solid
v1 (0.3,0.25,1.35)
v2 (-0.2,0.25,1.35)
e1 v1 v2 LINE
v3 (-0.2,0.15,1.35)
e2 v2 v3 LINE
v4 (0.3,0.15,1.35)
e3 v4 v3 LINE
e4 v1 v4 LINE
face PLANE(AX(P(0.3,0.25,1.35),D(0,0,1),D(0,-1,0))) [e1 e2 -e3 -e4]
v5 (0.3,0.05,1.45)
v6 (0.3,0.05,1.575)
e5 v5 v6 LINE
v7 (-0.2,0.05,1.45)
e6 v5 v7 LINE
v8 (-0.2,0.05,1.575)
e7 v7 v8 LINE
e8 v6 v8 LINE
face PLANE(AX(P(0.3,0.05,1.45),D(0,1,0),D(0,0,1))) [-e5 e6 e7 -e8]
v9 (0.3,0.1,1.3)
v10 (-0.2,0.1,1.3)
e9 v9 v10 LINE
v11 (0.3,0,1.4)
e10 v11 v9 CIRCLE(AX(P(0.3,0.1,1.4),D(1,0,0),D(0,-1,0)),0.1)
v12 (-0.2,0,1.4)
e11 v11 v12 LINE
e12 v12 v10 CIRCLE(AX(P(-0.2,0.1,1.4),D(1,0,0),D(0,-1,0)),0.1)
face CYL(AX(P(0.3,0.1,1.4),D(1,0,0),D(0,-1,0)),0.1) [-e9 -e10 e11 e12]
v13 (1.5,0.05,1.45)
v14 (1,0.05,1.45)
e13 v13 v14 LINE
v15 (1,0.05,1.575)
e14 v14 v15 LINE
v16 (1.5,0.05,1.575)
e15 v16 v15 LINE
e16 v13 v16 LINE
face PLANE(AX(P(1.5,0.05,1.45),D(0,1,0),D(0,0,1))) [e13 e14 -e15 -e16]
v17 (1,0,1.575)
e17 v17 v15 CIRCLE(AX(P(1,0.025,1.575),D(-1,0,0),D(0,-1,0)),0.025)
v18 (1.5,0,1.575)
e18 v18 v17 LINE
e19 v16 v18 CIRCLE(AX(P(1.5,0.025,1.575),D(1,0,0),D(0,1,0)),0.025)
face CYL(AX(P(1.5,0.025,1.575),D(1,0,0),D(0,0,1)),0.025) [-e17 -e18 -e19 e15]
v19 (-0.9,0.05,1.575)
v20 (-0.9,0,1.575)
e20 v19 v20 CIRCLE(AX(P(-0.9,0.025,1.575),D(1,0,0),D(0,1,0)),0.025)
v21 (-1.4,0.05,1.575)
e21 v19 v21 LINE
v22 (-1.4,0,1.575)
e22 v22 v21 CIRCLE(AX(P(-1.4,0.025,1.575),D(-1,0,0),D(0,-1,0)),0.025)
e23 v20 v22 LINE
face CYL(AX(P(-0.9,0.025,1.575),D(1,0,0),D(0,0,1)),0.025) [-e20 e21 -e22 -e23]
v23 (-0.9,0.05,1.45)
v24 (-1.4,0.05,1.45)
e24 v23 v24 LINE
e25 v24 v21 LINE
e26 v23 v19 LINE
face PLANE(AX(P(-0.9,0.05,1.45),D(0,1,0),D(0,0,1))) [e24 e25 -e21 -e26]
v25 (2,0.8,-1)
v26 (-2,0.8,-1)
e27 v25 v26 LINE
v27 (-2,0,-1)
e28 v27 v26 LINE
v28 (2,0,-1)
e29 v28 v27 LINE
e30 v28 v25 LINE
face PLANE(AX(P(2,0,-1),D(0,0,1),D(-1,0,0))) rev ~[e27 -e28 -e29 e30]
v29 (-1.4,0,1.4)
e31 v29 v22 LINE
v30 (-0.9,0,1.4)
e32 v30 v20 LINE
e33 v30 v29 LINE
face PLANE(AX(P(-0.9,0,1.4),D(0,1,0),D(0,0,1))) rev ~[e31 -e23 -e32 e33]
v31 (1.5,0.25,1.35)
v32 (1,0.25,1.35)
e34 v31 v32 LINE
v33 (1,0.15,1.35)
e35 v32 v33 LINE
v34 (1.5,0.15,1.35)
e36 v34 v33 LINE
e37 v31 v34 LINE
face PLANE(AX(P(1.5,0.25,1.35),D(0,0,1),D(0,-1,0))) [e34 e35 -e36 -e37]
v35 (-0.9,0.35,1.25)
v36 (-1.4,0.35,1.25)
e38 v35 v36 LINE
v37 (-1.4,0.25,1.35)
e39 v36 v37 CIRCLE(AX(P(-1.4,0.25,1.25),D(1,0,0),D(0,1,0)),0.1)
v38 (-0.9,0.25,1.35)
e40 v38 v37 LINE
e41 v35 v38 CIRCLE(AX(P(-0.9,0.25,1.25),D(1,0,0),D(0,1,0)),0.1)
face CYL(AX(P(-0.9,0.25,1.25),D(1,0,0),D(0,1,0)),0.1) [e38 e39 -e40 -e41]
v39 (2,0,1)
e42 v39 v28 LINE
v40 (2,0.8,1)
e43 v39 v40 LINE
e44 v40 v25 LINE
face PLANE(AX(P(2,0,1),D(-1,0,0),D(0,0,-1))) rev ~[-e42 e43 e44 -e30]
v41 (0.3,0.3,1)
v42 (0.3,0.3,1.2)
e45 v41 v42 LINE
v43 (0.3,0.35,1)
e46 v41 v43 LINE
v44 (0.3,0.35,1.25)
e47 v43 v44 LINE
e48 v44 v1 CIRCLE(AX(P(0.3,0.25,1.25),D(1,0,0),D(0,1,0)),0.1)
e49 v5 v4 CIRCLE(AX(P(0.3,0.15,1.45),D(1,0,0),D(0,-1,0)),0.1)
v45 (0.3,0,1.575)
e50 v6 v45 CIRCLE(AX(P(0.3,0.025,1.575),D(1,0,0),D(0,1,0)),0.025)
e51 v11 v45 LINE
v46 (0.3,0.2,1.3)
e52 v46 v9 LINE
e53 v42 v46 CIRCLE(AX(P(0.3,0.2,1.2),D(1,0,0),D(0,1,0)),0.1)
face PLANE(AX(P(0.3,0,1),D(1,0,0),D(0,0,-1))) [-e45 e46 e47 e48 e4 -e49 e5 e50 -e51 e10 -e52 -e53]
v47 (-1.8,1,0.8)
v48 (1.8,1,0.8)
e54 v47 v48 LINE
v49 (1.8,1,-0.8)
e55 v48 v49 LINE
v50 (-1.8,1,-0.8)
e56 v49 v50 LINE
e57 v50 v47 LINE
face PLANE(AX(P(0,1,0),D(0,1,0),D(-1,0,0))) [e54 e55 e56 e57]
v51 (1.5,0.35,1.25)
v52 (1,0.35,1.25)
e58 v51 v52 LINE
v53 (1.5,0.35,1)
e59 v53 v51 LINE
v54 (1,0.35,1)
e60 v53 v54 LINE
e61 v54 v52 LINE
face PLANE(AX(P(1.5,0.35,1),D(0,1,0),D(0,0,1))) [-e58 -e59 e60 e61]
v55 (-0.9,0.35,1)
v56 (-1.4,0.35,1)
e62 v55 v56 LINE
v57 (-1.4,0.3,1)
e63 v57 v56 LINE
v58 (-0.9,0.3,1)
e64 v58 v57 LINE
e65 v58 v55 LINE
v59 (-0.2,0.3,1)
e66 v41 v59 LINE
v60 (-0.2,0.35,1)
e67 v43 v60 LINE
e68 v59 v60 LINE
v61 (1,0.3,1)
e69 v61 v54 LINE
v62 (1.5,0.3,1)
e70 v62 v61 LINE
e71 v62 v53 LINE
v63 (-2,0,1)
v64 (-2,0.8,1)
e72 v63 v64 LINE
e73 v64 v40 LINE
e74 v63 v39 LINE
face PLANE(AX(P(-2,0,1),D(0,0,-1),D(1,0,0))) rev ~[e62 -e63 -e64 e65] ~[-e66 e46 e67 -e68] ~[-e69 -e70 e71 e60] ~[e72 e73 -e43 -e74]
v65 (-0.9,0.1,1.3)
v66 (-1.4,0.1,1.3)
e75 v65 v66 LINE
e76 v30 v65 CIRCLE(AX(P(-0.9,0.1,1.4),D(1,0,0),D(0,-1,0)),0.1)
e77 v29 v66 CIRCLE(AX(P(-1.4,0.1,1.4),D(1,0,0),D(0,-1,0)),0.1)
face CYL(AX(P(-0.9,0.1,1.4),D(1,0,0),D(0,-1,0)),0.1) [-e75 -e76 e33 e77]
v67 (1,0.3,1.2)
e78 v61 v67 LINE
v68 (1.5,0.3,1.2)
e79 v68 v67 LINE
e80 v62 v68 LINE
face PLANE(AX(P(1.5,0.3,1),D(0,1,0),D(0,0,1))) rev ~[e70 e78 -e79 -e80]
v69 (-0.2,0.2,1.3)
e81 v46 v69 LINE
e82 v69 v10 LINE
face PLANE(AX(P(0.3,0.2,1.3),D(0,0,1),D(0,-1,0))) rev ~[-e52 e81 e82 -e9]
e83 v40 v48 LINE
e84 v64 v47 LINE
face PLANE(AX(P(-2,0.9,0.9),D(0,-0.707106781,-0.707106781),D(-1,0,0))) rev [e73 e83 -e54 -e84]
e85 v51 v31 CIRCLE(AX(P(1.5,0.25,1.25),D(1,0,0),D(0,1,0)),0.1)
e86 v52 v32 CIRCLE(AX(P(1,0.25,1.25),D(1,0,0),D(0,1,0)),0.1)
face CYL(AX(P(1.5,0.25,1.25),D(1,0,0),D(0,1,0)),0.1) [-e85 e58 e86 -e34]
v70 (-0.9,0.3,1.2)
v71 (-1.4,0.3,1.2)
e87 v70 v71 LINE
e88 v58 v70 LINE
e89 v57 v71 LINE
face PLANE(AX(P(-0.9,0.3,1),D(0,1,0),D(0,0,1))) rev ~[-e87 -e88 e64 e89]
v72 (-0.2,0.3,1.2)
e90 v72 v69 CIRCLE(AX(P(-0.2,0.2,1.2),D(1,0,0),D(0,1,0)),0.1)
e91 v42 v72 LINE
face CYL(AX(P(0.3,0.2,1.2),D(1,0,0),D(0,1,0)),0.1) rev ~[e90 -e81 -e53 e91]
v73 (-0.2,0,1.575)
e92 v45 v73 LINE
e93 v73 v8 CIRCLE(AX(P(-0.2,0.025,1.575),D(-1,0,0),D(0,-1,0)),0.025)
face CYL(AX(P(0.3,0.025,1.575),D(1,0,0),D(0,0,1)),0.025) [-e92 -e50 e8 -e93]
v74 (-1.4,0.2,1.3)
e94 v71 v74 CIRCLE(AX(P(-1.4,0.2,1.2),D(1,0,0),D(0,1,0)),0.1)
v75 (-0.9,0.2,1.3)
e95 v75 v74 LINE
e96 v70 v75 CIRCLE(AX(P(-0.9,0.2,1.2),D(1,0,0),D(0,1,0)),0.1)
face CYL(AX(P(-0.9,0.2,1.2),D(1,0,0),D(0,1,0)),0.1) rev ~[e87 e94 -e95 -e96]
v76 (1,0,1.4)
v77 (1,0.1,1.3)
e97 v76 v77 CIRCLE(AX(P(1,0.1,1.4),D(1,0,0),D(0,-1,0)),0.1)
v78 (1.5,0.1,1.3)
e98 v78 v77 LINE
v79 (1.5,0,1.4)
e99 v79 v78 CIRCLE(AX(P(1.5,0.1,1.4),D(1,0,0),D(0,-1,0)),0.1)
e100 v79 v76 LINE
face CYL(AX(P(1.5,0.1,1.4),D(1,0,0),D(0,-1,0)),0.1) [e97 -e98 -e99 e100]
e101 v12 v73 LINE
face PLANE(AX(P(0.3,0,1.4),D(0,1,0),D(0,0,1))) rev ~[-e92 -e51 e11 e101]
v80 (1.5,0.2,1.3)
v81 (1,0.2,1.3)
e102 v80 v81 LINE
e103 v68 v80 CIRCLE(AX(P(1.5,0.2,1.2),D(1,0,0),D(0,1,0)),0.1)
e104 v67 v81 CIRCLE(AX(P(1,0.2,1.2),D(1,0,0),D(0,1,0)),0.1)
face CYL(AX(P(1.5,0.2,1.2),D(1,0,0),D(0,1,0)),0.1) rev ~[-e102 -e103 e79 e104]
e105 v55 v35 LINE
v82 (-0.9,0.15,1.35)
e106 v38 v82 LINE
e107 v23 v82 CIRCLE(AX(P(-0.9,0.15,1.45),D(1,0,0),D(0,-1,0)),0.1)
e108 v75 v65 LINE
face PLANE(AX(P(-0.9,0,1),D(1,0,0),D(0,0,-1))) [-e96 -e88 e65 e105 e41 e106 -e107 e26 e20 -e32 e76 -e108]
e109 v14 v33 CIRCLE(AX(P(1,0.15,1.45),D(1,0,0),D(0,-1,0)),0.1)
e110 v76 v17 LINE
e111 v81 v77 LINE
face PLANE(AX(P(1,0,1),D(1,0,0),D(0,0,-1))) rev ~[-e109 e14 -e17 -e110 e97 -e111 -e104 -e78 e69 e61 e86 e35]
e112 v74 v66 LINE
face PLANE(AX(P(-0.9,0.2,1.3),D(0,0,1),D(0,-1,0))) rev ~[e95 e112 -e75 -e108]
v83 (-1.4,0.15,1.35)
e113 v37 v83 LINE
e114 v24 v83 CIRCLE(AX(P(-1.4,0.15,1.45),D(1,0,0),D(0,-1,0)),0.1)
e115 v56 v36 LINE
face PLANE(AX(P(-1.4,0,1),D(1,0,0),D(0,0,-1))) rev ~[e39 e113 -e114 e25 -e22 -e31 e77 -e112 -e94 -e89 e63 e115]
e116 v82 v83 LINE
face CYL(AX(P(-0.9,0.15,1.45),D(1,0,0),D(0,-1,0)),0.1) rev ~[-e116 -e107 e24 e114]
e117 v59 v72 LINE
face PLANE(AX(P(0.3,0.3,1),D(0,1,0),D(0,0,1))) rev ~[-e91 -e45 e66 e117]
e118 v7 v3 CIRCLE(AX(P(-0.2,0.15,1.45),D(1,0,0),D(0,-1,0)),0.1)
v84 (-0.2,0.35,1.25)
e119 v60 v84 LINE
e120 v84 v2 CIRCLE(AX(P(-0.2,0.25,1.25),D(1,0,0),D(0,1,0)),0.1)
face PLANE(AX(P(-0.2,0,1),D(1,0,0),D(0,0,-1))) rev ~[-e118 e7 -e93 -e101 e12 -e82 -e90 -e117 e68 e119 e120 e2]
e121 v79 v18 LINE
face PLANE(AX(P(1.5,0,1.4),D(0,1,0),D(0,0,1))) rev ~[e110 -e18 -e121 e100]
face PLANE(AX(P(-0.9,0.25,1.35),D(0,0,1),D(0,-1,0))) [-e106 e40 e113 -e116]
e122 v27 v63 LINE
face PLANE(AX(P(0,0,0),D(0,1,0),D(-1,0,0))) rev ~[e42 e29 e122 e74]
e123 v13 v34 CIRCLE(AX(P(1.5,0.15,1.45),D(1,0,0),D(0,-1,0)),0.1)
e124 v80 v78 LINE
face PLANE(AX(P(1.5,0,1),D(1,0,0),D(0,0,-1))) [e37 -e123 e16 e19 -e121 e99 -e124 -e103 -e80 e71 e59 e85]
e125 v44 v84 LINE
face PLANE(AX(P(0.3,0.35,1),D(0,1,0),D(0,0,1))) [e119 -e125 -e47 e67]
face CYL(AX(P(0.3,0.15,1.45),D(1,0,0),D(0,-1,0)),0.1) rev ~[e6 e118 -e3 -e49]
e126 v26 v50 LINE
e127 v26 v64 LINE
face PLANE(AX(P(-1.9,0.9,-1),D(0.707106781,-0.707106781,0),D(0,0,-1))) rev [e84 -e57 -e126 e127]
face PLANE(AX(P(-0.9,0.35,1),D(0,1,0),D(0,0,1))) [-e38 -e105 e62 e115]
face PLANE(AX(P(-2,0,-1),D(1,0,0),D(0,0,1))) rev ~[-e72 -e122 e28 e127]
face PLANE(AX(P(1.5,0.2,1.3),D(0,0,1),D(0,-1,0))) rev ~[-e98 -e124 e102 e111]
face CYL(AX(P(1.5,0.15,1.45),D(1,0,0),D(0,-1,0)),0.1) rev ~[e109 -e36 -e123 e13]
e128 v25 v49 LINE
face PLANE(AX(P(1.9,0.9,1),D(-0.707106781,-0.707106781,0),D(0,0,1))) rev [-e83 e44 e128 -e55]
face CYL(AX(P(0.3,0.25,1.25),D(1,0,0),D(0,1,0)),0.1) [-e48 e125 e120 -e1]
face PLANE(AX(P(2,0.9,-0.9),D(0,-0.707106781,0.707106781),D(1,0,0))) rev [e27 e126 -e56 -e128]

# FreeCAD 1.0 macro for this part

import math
import FreeCAD as App
import Part
import Sketcher
from FreeCAD import Vector


def edges_at(feature, points):
    """Names of the edges that pass closest to the given points."""
    edges = feature.Shape.Edges
    near = lambda p: min(range(len(edges)), key=lambda i: edges[i].distToShape(Part.Vertex(*p))[0])
    return sorted({f"Edge{near(p) + 1}" for p in points})

doc = App.newDocument("Part")
body = doc.addObject("PartDesign::Body", "Body")

# Sketch on XZ plane
sketch1 = body.newObject("Sketcher::SketchObject", "Sketch")
sketch1.AttachmentSupport = (doc.getObject("XZ_Plane"), [""])
sketch1.MapMode = "FlatFace"
sketch1.addGeometry(Part.LineSegment(Vector(-2, -1, 0), Vector(-2, 1, 0)), False)
sketch1.addGeometry(Part.LineSegment(Vector(-2, 1, 0), Vector(2, 1, 0)), False)
sketch1.addGeometry(Part.LineSegment(Vector(2, 1, 0), Vector(2, -1, 0)), False)
sketch1.addGeometry(Part.LineSegment(Vector(2, -1, 0), Vector(-2, -1, 0)), False)
sketch1.addConstraint(Sketcher.Constraint("Coincident", 0, 2, 1, 1))
sketch1.addConstraint(Sketcher.Constraint("Coincident", 1, 2, 2, 1))
sketch1.addConstraint(Sketcher.Constraint("Coincident", 2, 2, 3, 1))
sketch1.addConstraint(Sketcher.Constraint("Coincident", 3, 2, 0, 1))
sketch1.addConstraint(Sketcher.Constraint("Vertical", 0))
sketch1.addConstraint(Sketcher.Constraint("Horizontal", 1))
sketch1.addConstraint(Sketcher.Constraint("Vertical", 2))
sketch1.addConstraint(Sketcher.Constraint("Horizontal", 3))
sketch1.addConstraint(Sketcher.Constraint("Symmetric", 0, 2, 2, 2, -1, 1))
sketch1.addConstraint(Sketcher.Constraint("DistanceX", 1, 1, 1, 2, 4.0))
sketch1.addConstraint(Sketcher.Constraint("DistanceY", 0, 1, 0, 2, 2.0))
pad1 = body.newObject("PartDesign::Pad", "Pad")
pad1.Profile = sketch1
pad1.Length = 1
pad1.Reversed = True
doc.recompute()

chamfer = body.newObject("PartDesign::Chamfer", "Chamfer")
chamfer.Base = (pad1, edges_at(pad1, [
    (0, 1, 1),
    (2, 1, 0),
    (0, 1, -1),
    (-2, 1, 0),
]))
chamfer.Size = 0.2

# Sketch on YZ plane
sketch2 = body.newObject("Sketcher::SketchObject", "Sketch001")
sketch2.AttachmentSupport = (doc.getObject("YZ_Plane"), [""])
sketch2.MapMode = "FlatFace"
sketch2.AttachmentOffset = App.Placement(Vector(0, 0, 1.5), App.Rotation())
sketch2.addGeometry(Part.LineSegment(Vector(0.3, 1.2, 0), Vector(0.3, 1, 0)), False)
sketch2.addGeometry(Part.LineSegment(Vector(0.3, 1, 0), Vector(0.35, 1, 0)), False)
sketch2.addGeometry(Part.LineSegment(Vector(0.35, 1, 0), Vector(0.35, 1.25, 0)), False)
sketch2.addGeometry(Part.ArcOfCircle(Part.Circle(Vector(0.25, 1.25, 0), Vector(0, 0, 1), 0.1), math.radians(0), math.radians(90)), False)
sketch2.addGeometry(Part.LineSegment(Vector(0.25, 1.35, 0), Vector(0.15, 1.35, 0)), False)
sketch2.addGeometry(Part.ArcOfCircle(Part.Circle(Vector(0.15, 1.45, 0), Vector(0, 0, 1), 0.1), math.radians(180), math.radians(270)), False)
sketch2.addGeometry(Part.LineSegment(Vector(0.05, 1.45, 0), Vector(0.05, 1.575, 0)), False)
sketch2.addGeometry(Part.ArcOfCircle(Part.Circle(Vector(0.025, 1.575, 0), Vector(0, 0, 1), 0.025), math.radians(0), math.radians(180)), False)
sketch2.addGeometry(Part.LineSegment(Vector(0, 1.575, 0), Vector(0, 1.4, 0)), False)
sketch2.addGeometry(Part.ArcOfCircle(Part.Circle(Vector(0.1, 1.4, 0), Vector(0, 0, 1), 0.1), math.radians(180), math.radians(270)), False)
sketch2.addGeometry(Part.LineSegment(Vector(0.1, 1.3, 0), Vector(0.2, 1.3, 0)), False)
sketch2.addGeometry(Part.ArcOfCircle(Part.Circle(Vector(0.2, 1.2, 0), Vector(0, 0, 1), 0.1), math.radians(0), math.radians(90)), False)
sketch2.addConstraint(Sketcher.Constraint("Coincident", 0, 2, 1, 1))
sketch2.addConstraint(Sketcher.Constraint("Coincident", 1, 2, 2, 1))
sketch2.addConstraint(Sketcher.Constraint("Tangent", 2, 2, 3, 1))
sketch2.addConstraint(Sketcher.Constraint("Tangent", 3, 2, 4, 1))
sketch2.addConstraint(Sketcher.Constraint("Tangent", 4, 2, 5, 2))
sketch2.addConstraint(Sketcher.Constraint("Tangent", 5, 1, 6, 1))
sketch2.addConstraint(Sketcher.Constraint("Tangent", 6, 2, 7, 1))
sketch2.addConstraint(Sketcher.Constraint("Tangent", 7, 2, 8, 1))
sketch2.addConstraint(Sketcher.Constraint("Tangent", 8, 2, 9, 1))
sketch2.addConstraint(Sketcher.Constraint("Tangent", 9, 2, 10, 1))
sketch2.addConstraint(Sketcher.Constraint("Tangent", 10, 2, 11, 2))
sketch2.addConstraint(Sketcher.Constraint("Tangent", 11, 1, 0, 1))
sketch2.addConstraint(Sketcher.Constraint("Vertical", 0))
sketch2.addConstraint(Sketcher.Constraint("Horizontal", 1))
sketch2.addConstraint(Sketcher.Constraint("Vertical", 2))
sketch2.addConstraint(Sketcher.Constraint("Horizontal", 4))
sketch2.addConstraint(Sketcher.Constraint("Vertical", 6))
sketch2.addConstraint(Sketcher.Constraint("Vertical", 8))
sketch2.addConstraint(Sketcher.Constraint("Horizontal", 10))
sketch2.addConstraint(Sketcher.Constraint("Equal", 3, 5))
sketch2.addConstraint(Sketcher.Constraint("Equal", 5, 9))
sketch2.addConstraint(Sketcher.Constraint("Equal", 9, 11))
sketch2.addConstraint(Sketcher.Constraint("PointOnObject", 7, 2, -2))
sketch2.addConstraint(Sketcher.Constraint("Equal", 4, 10))
sketch2.addConstraint(Sketcher.Constraint("Radius", 3, 0.1))
sketch2.addConstraint(Sketcher.Constraint("DistanceX", 4, 2, 4, 1, 0.1))
sketch2.addConstraint(Sketcher.Constraint("Radius", 7, 0.025))
sketch2.addConstraint(Sketcher.Constraint("DistanceY", 9, 3, 5, 3, 0.05))
sketch2.addConstraint(Sketcher.Constraint("DistanceY", 0, 2, 0, 1, 0.2))
sketch2.addConstraint(Sketcher.Constraint("DistanceY", -1, 1, 0, 2, 1.0))
sketch2.addConstraint(Sketcher.Constraint("DistanceY", 6, 1, 6, 2, 0.125))
pad2 = body.newObject("PartDesign::Pad", "Pad001")
pad2.Profile = sketch2
pad2.Length = 0.5
pad2.Reversed = True
doc.recompute()

linearpattern = body.newObject("PartDesign::LinearPattern", "LinearPattern")
linearpattern.Originals = [pad2]
linearpattern.Direction = (doc.getObject("X_Axis"), [""])
linearpattern.Mode = "offset"
linearpattern.Offset = 1.2
linearpattern.Occurrences = 3
linearpattern.Reversed = True
body.Tip = linearpattern

doc.recompute()
